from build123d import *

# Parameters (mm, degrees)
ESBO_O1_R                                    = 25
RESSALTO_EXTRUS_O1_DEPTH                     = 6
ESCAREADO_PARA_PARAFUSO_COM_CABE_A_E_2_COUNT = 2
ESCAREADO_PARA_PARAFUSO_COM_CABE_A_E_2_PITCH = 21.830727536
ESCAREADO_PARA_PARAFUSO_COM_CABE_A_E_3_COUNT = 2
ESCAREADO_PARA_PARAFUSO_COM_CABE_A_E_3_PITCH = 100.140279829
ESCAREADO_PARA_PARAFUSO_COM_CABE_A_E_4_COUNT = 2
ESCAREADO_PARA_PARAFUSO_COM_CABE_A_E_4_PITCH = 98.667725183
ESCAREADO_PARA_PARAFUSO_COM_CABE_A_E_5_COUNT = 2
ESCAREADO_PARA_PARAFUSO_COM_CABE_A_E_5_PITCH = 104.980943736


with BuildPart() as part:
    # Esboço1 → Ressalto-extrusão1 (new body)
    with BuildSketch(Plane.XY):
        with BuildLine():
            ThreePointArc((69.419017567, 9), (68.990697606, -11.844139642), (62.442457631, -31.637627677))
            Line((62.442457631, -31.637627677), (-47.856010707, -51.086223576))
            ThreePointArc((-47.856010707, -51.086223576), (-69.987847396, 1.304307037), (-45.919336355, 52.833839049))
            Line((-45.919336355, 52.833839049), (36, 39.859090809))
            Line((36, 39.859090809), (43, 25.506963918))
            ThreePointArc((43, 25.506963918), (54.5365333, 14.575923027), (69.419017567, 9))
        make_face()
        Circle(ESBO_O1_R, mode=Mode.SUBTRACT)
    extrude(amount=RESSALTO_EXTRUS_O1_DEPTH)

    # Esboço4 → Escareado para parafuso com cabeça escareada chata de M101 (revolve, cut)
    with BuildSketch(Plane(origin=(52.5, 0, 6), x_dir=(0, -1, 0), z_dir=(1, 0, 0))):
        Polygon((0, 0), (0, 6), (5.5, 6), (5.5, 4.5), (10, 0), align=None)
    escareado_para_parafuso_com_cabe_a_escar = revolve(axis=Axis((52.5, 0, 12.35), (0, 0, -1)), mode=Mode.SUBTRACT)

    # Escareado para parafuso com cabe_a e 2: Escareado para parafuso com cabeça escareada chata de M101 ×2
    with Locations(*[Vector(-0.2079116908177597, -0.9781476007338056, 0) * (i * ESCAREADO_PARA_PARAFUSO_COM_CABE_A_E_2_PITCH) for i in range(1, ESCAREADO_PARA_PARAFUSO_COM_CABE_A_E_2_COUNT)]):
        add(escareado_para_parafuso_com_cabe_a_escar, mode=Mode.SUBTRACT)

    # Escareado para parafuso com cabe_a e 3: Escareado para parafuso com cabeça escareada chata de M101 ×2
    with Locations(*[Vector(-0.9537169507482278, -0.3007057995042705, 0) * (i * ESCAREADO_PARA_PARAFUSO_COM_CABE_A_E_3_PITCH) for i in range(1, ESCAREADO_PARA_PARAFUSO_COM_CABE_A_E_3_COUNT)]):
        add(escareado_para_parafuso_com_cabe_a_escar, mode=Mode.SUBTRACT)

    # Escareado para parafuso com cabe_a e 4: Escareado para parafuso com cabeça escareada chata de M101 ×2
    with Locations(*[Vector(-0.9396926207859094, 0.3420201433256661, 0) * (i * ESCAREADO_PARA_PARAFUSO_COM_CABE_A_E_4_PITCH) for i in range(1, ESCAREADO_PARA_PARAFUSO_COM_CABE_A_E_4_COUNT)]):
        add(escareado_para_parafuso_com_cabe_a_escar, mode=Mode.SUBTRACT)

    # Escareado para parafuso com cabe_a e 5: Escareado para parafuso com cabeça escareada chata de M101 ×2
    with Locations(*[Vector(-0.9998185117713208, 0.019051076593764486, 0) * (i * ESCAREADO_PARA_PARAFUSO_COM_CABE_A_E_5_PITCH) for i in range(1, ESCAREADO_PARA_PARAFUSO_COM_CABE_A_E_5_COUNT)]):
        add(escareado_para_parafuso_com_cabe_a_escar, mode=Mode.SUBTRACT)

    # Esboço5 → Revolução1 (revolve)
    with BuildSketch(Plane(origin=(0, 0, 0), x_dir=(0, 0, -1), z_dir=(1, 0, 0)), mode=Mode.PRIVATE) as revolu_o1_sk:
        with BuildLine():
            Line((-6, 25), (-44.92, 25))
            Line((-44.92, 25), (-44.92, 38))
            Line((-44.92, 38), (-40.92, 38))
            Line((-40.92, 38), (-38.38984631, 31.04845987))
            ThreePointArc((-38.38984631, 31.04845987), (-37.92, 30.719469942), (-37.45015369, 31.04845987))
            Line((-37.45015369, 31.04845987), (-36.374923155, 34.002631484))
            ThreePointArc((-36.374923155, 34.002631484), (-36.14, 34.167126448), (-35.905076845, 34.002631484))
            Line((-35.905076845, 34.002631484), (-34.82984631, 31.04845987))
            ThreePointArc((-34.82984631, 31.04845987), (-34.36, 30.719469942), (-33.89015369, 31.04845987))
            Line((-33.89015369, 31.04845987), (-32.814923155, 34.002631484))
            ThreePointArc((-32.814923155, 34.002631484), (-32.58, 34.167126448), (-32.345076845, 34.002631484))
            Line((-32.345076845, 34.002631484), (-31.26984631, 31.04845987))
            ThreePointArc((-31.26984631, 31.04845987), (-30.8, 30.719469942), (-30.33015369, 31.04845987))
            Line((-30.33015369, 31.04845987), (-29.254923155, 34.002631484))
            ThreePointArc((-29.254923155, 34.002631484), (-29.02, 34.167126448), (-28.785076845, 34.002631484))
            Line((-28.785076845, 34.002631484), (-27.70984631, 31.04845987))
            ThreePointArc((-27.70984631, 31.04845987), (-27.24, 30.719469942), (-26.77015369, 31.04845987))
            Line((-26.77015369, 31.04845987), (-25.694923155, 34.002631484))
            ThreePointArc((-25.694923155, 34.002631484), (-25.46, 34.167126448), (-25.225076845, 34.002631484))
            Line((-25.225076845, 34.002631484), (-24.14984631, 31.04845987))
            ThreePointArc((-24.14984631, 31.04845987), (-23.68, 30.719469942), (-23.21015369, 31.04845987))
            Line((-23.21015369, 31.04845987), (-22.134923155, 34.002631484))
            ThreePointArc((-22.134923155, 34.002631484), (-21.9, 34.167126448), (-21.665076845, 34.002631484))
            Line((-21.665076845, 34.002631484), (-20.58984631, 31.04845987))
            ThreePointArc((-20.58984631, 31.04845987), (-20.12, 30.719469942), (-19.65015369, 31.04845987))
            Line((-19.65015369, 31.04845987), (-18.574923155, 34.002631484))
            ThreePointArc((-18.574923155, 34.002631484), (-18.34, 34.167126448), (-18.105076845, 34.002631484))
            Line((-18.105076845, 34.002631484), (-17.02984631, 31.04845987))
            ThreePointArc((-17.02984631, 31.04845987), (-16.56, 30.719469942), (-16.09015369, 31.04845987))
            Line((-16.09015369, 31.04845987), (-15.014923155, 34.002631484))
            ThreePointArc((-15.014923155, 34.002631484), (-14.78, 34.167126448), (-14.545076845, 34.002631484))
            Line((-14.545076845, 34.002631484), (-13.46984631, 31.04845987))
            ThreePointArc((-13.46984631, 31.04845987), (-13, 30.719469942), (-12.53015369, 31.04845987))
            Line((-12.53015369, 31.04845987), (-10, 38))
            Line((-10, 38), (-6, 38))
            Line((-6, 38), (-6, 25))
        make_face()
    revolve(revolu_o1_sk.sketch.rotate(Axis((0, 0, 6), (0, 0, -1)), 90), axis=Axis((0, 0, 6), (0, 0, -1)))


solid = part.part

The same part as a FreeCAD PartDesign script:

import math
import FreeCAD as App
import Part
import Sketcher
Q = App.Units.Quantity


def add_polygon(sketch, points):
    """Adds a closed chain of lines whose ends are joined by coincident constraints."""
    first, n = sketch.GeometryCount, len(points)
    for a, b in zip(points, points[1:] + points[:1]):
        sketch.addGeometry(Part.LineSegment(App.Vector(*a, 0), App.Vector(*b, 0)), False)
    for i in range(n):
        sketch.addConstraint(Sketcher.Constraint("Coincident", first + i, 2, first + (i + 1) % n, 1))

doc = App.newDocument("Part")
body = doc.addObject("PartDesign::Body", "Body")

sketch1 = body.newObject("Sketcher::SketchObject", "Sketch")
sketch1.AttachmentSupport = (doc.getObject("XY_Plane"), [""])
sketch1.MapMode = "FlatFace"
sketch1.addGeometry(Part.ArcOfCircle(Part.Circle(App.Vector(0, 0, 0), App.Vector(0, 0, 1), 70), math.radians(-27), math.radians(7)), False)
sketch1.addGeometry(Part.ArcOfCircle(Part.Circle(App.Vector(76, 48, 0), App.Vector(0, 0, 1), 40), math.radians(-145), math.radians(-99)), False)
sketch1.addGeometry(Part.LineSegment(App.Vector(43, 26, 0), App.Vector(36, 40, 0)), False)
sketch1.addGeometry(Part.LineSegment(App.Vector(36, 40, 0), App.Vector(-46, 53, 0)), False)
sketch1.addGeometry(Part.ArcOfCircle(Part.Circle(App.Vector(0, 0, 0), App.Vector(0, 0, 1), 70), math.radians(131), math.radians(227)), False)
sketch1.addGeometry(Part.LineSegment(App.Vector(-48, -51, 0), App.Vector(62, -32, 0)), False)
sketch1.addGeometry(Part.Circle(App.Vector(0, 0, 0), App.Vector(0, 0, 1), 25), False)
sketch1.addConstraint(Sketcher.Constraint("Coincident", 0, 2, 1, 2))
sketch1.addConstraint(Sketcher.Constraint("Coincident", 1, 1, 2, 1))
sketch1.addConstraint(Sketcher.Constraint("Coincident", 2, 2, 3, 1))
sketch1.addConstraint(Sketcher.Constraint("Coincident", 3, 2, 4, 1))
sketch1.addConstraint(Sketcher.Constraint("Coincident", 4, 2, 5, 1))
sketch1.addConstraint(Sketcher.Constraint("Coincident", 5, 2, 0, 1))
sketch1.addConstraint(Sketcher.Constraint("Coincident", 0, 3, -1, 1))
sketch1.addConstraint(Sketcher.Constraint("Coincident", 4, 3, -1, 1))
sketch1.addConstraint(Sketcher.Constraint("Coincident", 6, 3, -1, 1))
sketch1.addConstraint(Sketcher.Constraint("Equal", 0, 4))
sketch1.addConstraint(Sketcher.Constraint("Diameter", 6, Q("50 mm")))
sketch1.addConstraint(Sketcher.Constraint("Radius", 0, Q("70 mm")))
sketch1.addConstraint(Sketcher.Constraint("Radius", 1, Q("40 mm")))
sketch1.addConstraint(Sketcher.Constraint("Angle", 2, Q("116 deg")))
sketch1.addConstraint(Sketcher.Constraint("Angle", 3, Q("171 deg")))
sketch1.addConstraint(Sketcher.Constraint("Angle", 5, Q("10 deg")))
sketch1.addConstraint(Sketcher.Constraint("Distance", 5, Q("112 mm")))
sketch1.addConstraint(Sketcher.Constraint("DistanceY", -1, 1, 0, 2, Q("9 mm")))
sketch1.addConstraint(Sketcher.Constraint("DistanceX", -1, 1, 1, 1, Q("43 mm")))
sketch1.addConstraint(Sketcher.Constraint("DistanceX", -1, 1, 2, 2, Q("36 mm")))
sketch1.addConstraint(Sketcher.Constraint("Distance", 3, Q("82.940471 mm")))
pad1 = body.newObject("PartDesign::Pad", "Pad")
pad1.Profile = sketch1
pad1.Length = 6

sketch2 = body.newObject("Sketcher::SketchObject", "Sketch001")
sketch2.AttachmentSupport = (doc.getObject("YZ_Plane"), [""])
sketch2.MapMode = "FlatFace"
sketch2.AttachmentOffset = App.Placement(App.Vector(0, 0, 52.5), App.Rotation())
add_polygon(sketch2, [(0, 0), (0, 6), (-10, 6), (-5.5, 1.5), (-5.5, 0)])
sketch2.addConstraint(Sketcher.Constraint("Vertical", 0))
sketch2.addConstraint(Sketcher.Constraint("Horizontal", 1))
sketch2.addConstraint(Sketcher.Constraint("Vertical", 3))
sketch2.addConstraint(Sketcher.Constraint("Horizontal", 4))
sketch2.addConstraint(Sketcher.Constraint("Coincident", 4, 2, -1, 1))
sketch2.addConstraint(Sketcher.Constraint("DistanceX", 1, 2, 1, 1, Q("10 mm")))
sketch2.addConstraint(Sketcher.Constraint("DistanceY", 0, 1, 0, 2, Q("6 mm")))
sketch2.addConstraint(Sketcher.Constraint("Angle", 2, Q("-45 deg")))
sketch2.addConstraint(Sketcher.Constraint("DistanceX", 4, 1, 4, 2, Q("5.5 mm")))
groove = body.newObject("PartDesign::Groove", "Groove")
groove.Profile = sketch2
groove.ReferenceAxis = (sketch2, ["V_Axis"])
groove.Angle = 360
doc.recompute()

datumline = body.newObject("PartDesign::Line", "DatumLine")
datumline.Placement = App.Placement(App.Vector(0, 0, 0), App.Rotation(App.Vector(0, 0, 1), App.Vector(-0.207911691, -0.978147601, 0)))
linearpattern = body.newObject("PartDesign::LinearPattern", "LinearPattern")
linearpattern.Originals = [groove]
linearpattern.Direction = (datumline, [""])
linearpattern.Mode = "offset"
linearpattern.Offset = 21.830728
linearpattern.Occurrences = 2
body.Tip = linearpattern
doc.recompute()

datumline2 = body.newObject("PartDesign::Line", "DatumLine001")
datumline2.Placement = App.Placement(App.Vector(0, 0, 0), App.Rotation(App.Vector(0, 0, 1), App.Vector(-0.953716951, -0.3007058, 0)))
linearpattern2 = body.newObject("PartDesign::LinearPattern", "LinearPattern001")
linearpattern2.Originals = [groove]
linearpattern2.Direction = (datumline2, [""])
linearpattern2.Mode = "offset"
linearpattern2.Offset = 100.14028
linearpattern2.Occurrences = 2
body.Tip = linearpattern2
doc.recompute()

datumline3 = body.newObject("PartDesign::Line", "DatumLine002")
datumline3.Placement = App.Placement(App.Vector(0, 0, 0), App.Rotation(App.Vector(0, 0, 1), App.Vector(-0.939692621, 0.342020143, 0)))
linearpattern3 = body.newObject("PartDesign::LinearPattern", "LinearPattern002")
linearpattern3.Originals = [groove]
linearpattern3.Direction = (datumline3, [""])
linearpattern3.Mode = "offset"
linearpattern3.Offset = 98.667725
linearpattern3.Occurrences = 2
body.Tip = linearpattern3
doc.recompute()

datumline4 = body.newObject("PartDesign::Line", "DatumLine003")
datumline4.Placement = App.Placement(App.Vector(0, 0, 0), App.Rotation(App.Vector(0, 0, 1), App.Vector(-0.999818512, 0.019051077, 0)))
linearpattern4 = body.newObject("PartDesign::LinearPattern", "LinearPattern003")
linearpattern4.Originals = [groove]
linearpattern4.Direction = (datumline4, [""])
linearpattern4.Mode = "offset"
linearpattern4.Offset = 104.980944
linearpattern4.Occurrences = 2
body.Tip = linearpattern4

sketch3 = body.newObject("Sketcher::SketchObject", "Sketch002")
sketch3.AttachmentSupport = (doc.getObject("YZ_Plane"), [""])
sketch3.MapMode = "FlatFace"
sketch3.addGeometry(Part.LineSegment(App.Vector(25, 44.92, 0), App.Vector(25, 6, 0)), False)
sketch3.addGeometry(Part.LineSegment(App.Vector(25, 6, 0), App.Vector(38, 6, 0)), False)
sketch3.addGeometry(Part.LineSegment(App.Vector(38, 6, 0), App.Vector(38, 10, 0)), False)
sketch3.addGeometry(Part.LineSegment(App.Vector(38, 10, 0), App.Vector(31.05, 12.53, 0)), False)
sketch3.addGeometry(Part.ArcOfCircle(Part.Circle(App.Vector(31.22, 13, 0), App.Vector(0, 0, 1), 0.5), math.radians(110), math.radians(250)), False)
sketch3.addGeometry(Part.LineSegment(App.Vector(31.05, 13.47, 0), App.Vector(34, 14.55, 0)), False)
sketch3.addGeometry(Part.ArcOfCircle(Part.Circle(App.Vector(33.92, 14.78, 0), App.Vector(0, 0, 1), 0.25), math.radians(-70), math.radians(70)), False)
sketch3.addGeometry(Part.LineSegment(App.Vector(34, 15.01, 0), App.Vector(31.05, 16.09, 0)), False)
sketch3.addGeometry(Part.ArcOfCircle(Part.Circle(App.Vector(31.22, 16.56, 0), App.Vector(0, 0, 1), 0.5), math.radians(110), math.radians(250)), False)
sketch3.addGeometry(Part.LineSegment(App.Vector(31.05, 17.03, 0), App.Vector(34, 18.11, 0)), False)
sketch3.addGeometry(Part.ArcOfCircle(Part.Circle(App.Vector(33.92, 18.34, 0), App.Vector(0, 0, 1), 0.25), math.radians(-70), math.radians(70)), False)
sketch3.addGeometry(Part.LineSegment(App.Vector(34, 18.57, 0), App.Vector(31.05, 19.65, 0)), False)
sketch3.addGeometry(Part.ArcOfCircle(Part.Circle(App.Vector(31.22, 20.12, 0), App.Vector(0, 0, 1), 0.5), math.radians(110), math.radians(250)), False)
sketch3.addGeometry(Part.LineSegment(App.Vector(31.05, 20.59, 0), App.Vector(34, 21.67, 0)), False)
sketch3.addGeometry(Part.ArcOfCircle(Part.Circle(App.Vector(33.92, 21.9, 0), App.Vector(0, 0, 1), 0.25), math.radians(-70), math.radians(70)), False)
sketch3.addGeometry(Part.LineSegment(App.Vector(34, 22.13, 0), App.Vector(31.05, 23.21, 0)), False)
sketch3.addGeometry(Part.ArcOfCircle(Part.Circle(App.Vector(31.22, 23.68, 0), App.Vector(0, 0, 1), 0.5), math.radians(110), math.radians(250)), False)
sketch3.addGeometry(Part.LineSegment(App.Vector(31.05, 24.15, 0), App.Vector(34, 25.23, 0)), False)
sketch3.addGeometry(Part.ArcOfCircle(Part.Circle(App.Vector(33.92, 25.46, 0), App.Vector(0, 0, 1), 0.25), math.radians(-70), math.radians(70)), False)
sketch3.addGeometry(Part.LineSegment(App.Vector(34, 25.69, 0), App.Vector(31.05, 26.77, 0)), False)
sketch3.addGeometry(Part.ArcOfCircle(Part.Circle(App.Vector(31.22, 27.24, 0), App.Vector(0, 0, 1), 0.5), math.radians(110), math.radians(250)), False)
sketch3.addGeometry(Part.LineSegment(App.Vector(31.05, 27.71, 0), App.Vector(34, 28.79, 0)), False)
sketch3.addGeometry(Part.ArcOfCircle(Part.Circle(App.Vector(33.92, 29.02, 0), App.Vector(0, 0, 1), 0.25), math.radians(-70), math.radians(70)), False)
sketch3.addGeometry(Part.LineSegment(App.Vector(34, 29.25, 0), App.Vector(31.05, 30.33, 0)), False)
sketch3.addGeometry(Part.ArcOfCircle(Part.Circle(App.Vector(31.22, 30.8, 0), App.Vector(0, 0, 1), 0.5), math.radians(110), math.radians(250)), False)
sketch3.addGeometry(Part.LineSegment(App.Vector(31.05, 31.27, 0), App.Vector(34, 32.35, 0)), False)
sketch3.addGeometry(Part.ArcOfCircle(Part.Circle(App.Vector(33.92, 32.58, 0), App.Vector(0, 0, 1), 0.25), math.radians(-70), math.radians(70)), False)
sketch3.addGeometry(Part.LineSegment(App.Vector(34, 32.81, 0), App.Vector(31.05, 33.89, 0)), False)
sketch3.addGeometry(Part.ArcOfCircle(Part.Circle(App.Vector(31.22, 34.36, 0), App.Vector(0, 0, 1), 0.5), math.radians(110), math.radians(250)), False)
sketch3.addGeometry(Part.LineSegment(App.Vector(31.05, 34.83, 0), App.Vector(34, 35.91, 0)), False)
sketch3.addGeometry(Part.ArcOfCircle(Part.Circle(App.Vector(33.92, 36.14, 0), App.Vector(0, 0, 1), 0.25), math.radians(-70), math.radians(70)), False)
sketch3.addGeometry(Part.LineSegment(App.Vector(34, 36.37, 0), App.Vector(31.05, 37.45, 0)), False)
sketch3.addGeometry(Part.ArcOfCircle(Part.Circle(App.Vector(31.22, 37.92, 0), App.Vector(0, 0, 1), 0.5), math.radians(110), math.radians(250)), False)
sketch3.addGeometry(Part.LineSegment(App.Vector(31.05, 38.39, 0), App.Vector(38, 40.92, 0)), False)
sketch3.addGeometry(Part.LineSegment(App.Vector(38, 40.92, 0), App.Vector(38, 44.92, 0)), False)
sketch3.addGeometry(Part.LineSegment(App.Vector(38, 44.92, 0), App.Vector(25, 44.92, 0)), False)
sketch3.addConstraint(Sketcher.Constraint("Coincident", 0, 2, 1, 1))
sketch3.addConstraint(Sketcher.Constraint("Coincident", 1, 2, 2, 1))
sketch3.addConstraint(Sketcher.Constraint("Coincident", 2, 2, 3, 1))
sketch3.addConstraint(Sketcher.Constraint("Tangent", 3, 2, 4, 2))
sketch3.addConstraint(Sketcher.Constraint("Tangent", 4, 1, 5, 1))
sketch3.addConstraint(Sketcher.Constraint("Tangent", 5, 2, 6, 1))
sketch3.addConstraint(Sketcher.Constraint("Tangent", 6, 2, 7, 1))
sketch3.addConstraint(Sketcher.Constraint("Tangent", 7, 2, 8, 2))
sketch3.addConstraint(Sketcher.Constraint("Tangent", 8, 1, 9, 1))
sketch3.addConstraint(Sketcher.Constraint("Tangent", 9, 2, 10, 1))
sketch3.addConstraint(Sketcher.Constraint("Tangent", 10, 2, 11, 1))
sketch3.addConstraint(Sketcher.Constraint("Tangent", 11, 2, 12, 2))
sketch3.addConstraint(Sketcher.Constraint("Tangent", 12, 1, 13, 1))
sketch3.addConstraint(Sketcher.Constraint("Tangent", 13, 2, 14, 1))
sketch3.addConstraint(Sketcher.Constraint("Tangent", 14, 2, 15, 1))
sketch3.addConstraint(Sketcher.Constraint("Tangent", 15, 2, 16, 2))
sketch3.addConstraint(Sketcher.Constraint("Tangent", 16, 1, 17, 1))
sketch3.addConstraint(Sketcher.Constraint("Tangent", 17, 2, 18, 1))
sketch3.addConstraint(Sketcher.Constraint("Tangent", 18, 2, 19, 1))
sketch3.addConstraint(Sketcher.Constraint("Tangent", 19, 2, 20, 2))
sketch3.addConstraint(Sketcher.Constraint("Tangent", 20, 1, 21, 1))
sketch3.addConstraint(Sketcher.Constraint("Tangent", 21, 2, 22, 1))
sketch3.addConstraint(Sketcher.Constraint("Tangent", 22, 2, 23, 1))
sketch3.addConstraint(Sketcher.Constraint("Tangent", 23, 2, 24, 2))
sketch3.addConstraint(Sketcher.Constraint("Tangent", 24, 1, 25, 1))
sketch3.addConstraint(Sketcher.Constraint("Tangent", 25, 2, 26, 1))
sketch3.addConstraint(Sketcher.Constraint("Tangent", 26, 2, 27, 1))
sketch3.addConstraint(Sketcher.Constraint("Tangent", 27, 2, 28, 2))
sketch3.addConstraint(Sketcher.Constraint("Tangent", 28, 1, 29, 1))
sketch3.addConstraint(Sketcher.Constraint("Tangent", 29, 2, 30, 1))
sketch3.addConstraint(Sketcher.Constraint("Tangent", 30, 2, 31, 1))
sketch3.addConstraint(Sketcher.Constraint("Tangent", 31, 2, 32, 2))
sketch3.addConstraint(Sketcher.Constraint("Tangent", 32, 1, 33, 1))
sketch3.addConstraint(Sketcher.Constraint("Coincident", 33, 2, 34, 1))
sketch3.addConstraint(Sketcher.Constraint("Coincident", 34, 2, 35, 1))
sketch3.addConstraint(Sketcher.Constraint("Coincident", 35, 2, 0, 1))
sketch3.addConstraint(Sketcher.Constraint("Vertical", 0))
sketch3.addConstraint(Sketcher.Constraint("Horizontal", 1))
sketch3.addConstraint(Sketcher.Constraint("Vertical", 2))
sketch3.addConstraint(Sketcher.Constraint("Vertical", 34))
sketch3.addConstraint(Sketcher.Constraint("Horizontal", 35))
sketch3.addConstraint(Sketcher.Constraint("Equal", 4, 8))
sketch3.addConstraint(Sketcher.Constraint("Equal", 6, 10))
sketch3.addConstraint(Sketcher.Constraint("Equal", 8, 12))
sketch3.addConstraint(Sketcher.Constraint("Equal", 10, 14))
sketch3.addConstraint(Sketcher.Constraint("Equal", 12, 16))
sketch3.addConstraint(Sketcher.Constraint("Equal", 14, 18))
sketch3.addConstraint(Sketcher.Constraint("Equal", 16, 20))
sketch3.addConstraint(Sketcher.Constraint("Equal", 18, 22))
sketch3.addConstraint(Sketcher.Constraint("Equal", 20, 24))
sketch3.addConstraint(Sketcher.Constraint("Equal", 22, 26))
sketch3.addConstraint(Sketcher.Constraint("Equal", 24, 28))
sketch3.addConstraint(Sketcher.Constraint("Equal", 26, 30))
sketch3.addConstraint(Sketcher.Constraint("Equal", 28, 32))
sketch3.addConstraint(Sketcher.Constraint("Parallel", 3, 7))
sketch3.addConstraint(Sketcher.Constraint("Parallel", 5, 9))
sketch3.addConstraint(Sketcher.Constraint("Parallel", 7, 11))
sketch3.addConstraint(Sketcher.Constraint("Parallel", 9, 13))
sketch3.addConstraint(Sketcher.Constraint("Parallel", 11, 15))
sketch3.addConstraint(Sketcher.Constraint("Parallel", 13, 17))
sketch3.addConstraint(Sketcher.Constraint("Parallel", 15, 19))
sketch3.addConstraint(Sketcher.Constraint("Parallel", 17, 21))
sketch3.addConstraint(Sketcher.Constraint("Parallel", 19, 23))
sketch3.addConstraint(Sketcher.Constraint("Parallel", 21, 25))
sketch3.addConstraint(Sketcher.Constraint("Parallel", 23, 27))
sketch3.addConstraint(Sketcher.Constraint("Parallel", 25, 29))
sketch3.addConstraint(Sketcher.Constraint("Parallel", 27, 31))
sketch3.addConstraint(Sketcher.Constraint("Parallel", 29, 33))
sketch3.addConstraint(Sketcher.Constraint("Vertical", 4, 3, 8, 3))
sketch3.addConstraint(Sketcher.Constraint("Vertical", 6, 3, 10, 3))
sketch3.addConstraint(Sketcher.Constraint("Vertical", 8, 3, 12, 3))
sketch3.addConstraint(Sketcher.Constraint("Vertical", 10, 3, 14, 3))
sketch3.addConstraint(Sketcher.Constraint("Vertical", 12, 3, 16, 3))
sketch3.addConstraint(Sketcher.Constraint("Vertical", 14, 3, 18, 3))
sketch3.addConstraint(Sketcher.Constraint("Vertical", 16, 3, 20, 3))
sketch3.addConstraint(Sketcher.Constraint("Vertical", 18, 3, 22, 3))
sketch3.addConstraint(Sketcher.Constraint("Vertical", 20, 3, 24, 3))
sketch3.addConstraint(Sketcher.Constraint("Vertical", 22, 3, 26, 3))
sketch3.addConstraint(Sketcher.Constraint("Vertical", 24, 3, 28, 3))
sketch3.addConstraint(Sketcher.Constraint("Vertical", 26, 3, 30, 3))
sketch3.addConstraint(Sketcher.Constraint("Vertical", 28, 3, 32, 3))
sketch3.addConstraint(Sketcher.Constraint("Vertical", 3, 2, 4, 1))
sketch3.addConstraint(Sketcher.Constraint("Vertical", 2, 2, 33, 2))
sketch3.addConstraint(Sketcher.Constraint("Equal", 2, 34))
sketch3.addConstraint(Sketcher.Constraint("Radius", 4, Q("0.5 mm")))
sketch3.addConstraint(Sketcher.Constraint("DistanceX", 1, 1, 1, 2, Q("13 mm")))
sketch3.addConstraint(Sketcher.Constraint("DistanceY", 2, 1, 2, 2, Q("4 mm")))
sketch3.addConstraint(Sketcher.Constraint("Angle", 3, Q("160 deg")))
sketch3.addConstraint(Sketcher.Constraint("Radius", 6, Q("0.25 mm")))
sketch3.addConstraint(Sketcher.Constraint("DistanceY", -1, 1, 4, 3, Q("13 mm")))
sketch3.addConstraint(Sketcher.Constraint("DistanceX", -1, 1, 0, 2, Q("25 mm")))
sketch3.addConstraint(Sketcher.Constraint("DistanceY", -1, 1, 0, 2, Q("6 mm")))
sketch3.addConstraint(Sketcher.Constraint("DistanceY", 0, 2, 0, 1, Q("38.92 mm")))
revolution = body.newObject("PartDesign::Revolution", "Revolution")
revolution.Profile = sketch3
revolution.ReferenceAxis = (sketch3, ["V_Axis"])
revolution.Angle = 360

doc.recompute()
